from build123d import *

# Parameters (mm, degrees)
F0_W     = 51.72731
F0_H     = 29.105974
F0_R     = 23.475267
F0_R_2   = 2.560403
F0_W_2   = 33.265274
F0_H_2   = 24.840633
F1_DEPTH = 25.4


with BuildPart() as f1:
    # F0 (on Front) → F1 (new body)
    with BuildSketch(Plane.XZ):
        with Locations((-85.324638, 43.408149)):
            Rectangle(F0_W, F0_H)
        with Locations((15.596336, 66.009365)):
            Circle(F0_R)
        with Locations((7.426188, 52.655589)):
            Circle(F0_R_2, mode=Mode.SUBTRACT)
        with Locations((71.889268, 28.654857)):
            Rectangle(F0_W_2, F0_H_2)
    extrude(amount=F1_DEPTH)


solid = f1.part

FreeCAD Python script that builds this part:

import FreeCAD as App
import Part
import Sketcher

V = App.Vector
Q = App.Units.Quantity

doc = App.newDocument("Part")
body = doc.addObject("PartDesign::Body", "Body")
body.AllowCompound = True

# Sketch on XZ plane
sketch1 = body.newObject("Sketcher::SketchObject", "Sketch")
sketch1.AttachmentSupport = (doc.getObject("XZ_Plane"), [""])
sketch1.MapMode = "FlatFace"
sketch1.addGeometry([
    Part.LineSegment(V(-111.188293, 57.961136, 0), V(-111.188293, 28.855162, 0)),  # 0
    Part.LineSegment(V(-111.188293, 28.855162, 0), V(-59.460983, 28.855162, 0)),  # 1
    Part.LineSegment(V(-59.460983, 28.855162, 0), V(-59.460983, 57.961136, 0)),  # 2
    Part.LineSegment(V(-59.460983, 57.961136, 0), V(-111.188293, 57.961136, 0)),  # 3
    Part.Circle(V(15.596336, 66.009365, 0), V(0, 0, 1), 23.475267),  # 4
    Part.Circle(V(7.426188, 52.655589, 0), V(0, 0, 1), 2.560403),  # 5
    Part.LineSegment(V(55.256631, 41.075173, 0), V(55.256631, 16.234541, 0)),  # 6
    Part.LineSegment(V(55.256631, 16.234541, 0), V(88.521905, 16.234541, 0)),  # 7
    Part.LineSegment(V(88.521905, 16.234541, 0), V(88.521905, 41.075173, 0)),  # 8
    Part.LineSegment(V(88.521905, 41.075173, 0), V(55.256631, 41.075173, 0)),  # 9
], False)
sketch1.addConstraint([
    Sketcher.Constraint("Coincident", 0, 2, 1, 1),
    Sketcher.Constraint("Coincident", 1, 2, 2, 1),
    Sketcher.Constraint("Coincident", 2, 2, 3, 1),
    Sketcher.Constraint("Coincident", 3, 2, 0, 1),
    Sketcher.Constraint("Coincident", 6, 2, 7, 1),
    Sketcher.Constraint("Coincident", 7, 2, 8, 1),
    Sketcher.Constraint("Coincident", 8, 2, 9, 1),
    Sketcher.Constraint("Coincident", 9, 2, 6, 1),
    Sketcher.Constraint("Vertical", 0),
    Sketcher.Constraint("Horizontal", 1),
    Sketcher.Constraint("Vertical", 2),
    Sketcher.Constraint("Horizontal", 3),
    Sketcher.Constraint("Vertical", 6),
    Sketcher.Constraint("Horizontal", 7),
    Sketcher.Constraint("Vertical", 8),
    Sketcher.Constraint("Horizontal", 9),
    Sketcher.Constraint("Diameter", 4, 46.950534),
    Sketcher.Constraint("Diameter", 5, 5.120806),
    Sketcher.Constraint("DistanceX", 1, 1, 1, 2, 51.72731),
    Sketcher.Constraint("DistanceX", 7, 1, 7, 2, 33.265274),
    Sketcher.Constraint("DistanceY", 0, 2, 0, 1, 29.105974),
    Sketcher.Constraint("DistanceY", 6, 2, 6, 1, 24.840633),
    Sketcher.Constraint("DistanceY", -1, 1, 5, 3, 52.655589),
    Sketcher.Constraint("DistanceY", -1, 1, 0, 2, 28.855162),
    Sketcher.Constraint("DistanceX", -1, 1, 6, 2, 55.256631),
    Sketcher.Constraint("DistanceY", -1, 1, 6, 2, 16.234541),
    Sketcher.Constraint("DistanceX", 5, 3, 4, 3, 8.170148),
    Sketcher.Constraint("DistanceX", 0, 2, 5, 3, 118.614481),
    Sketcher.Constraint("DistanceY", 2, 2, 4, 3, 8.048229),
    Sketcher.Constraint("DistanceX", 4, 3, 7, 2, 72.925569),
])
pad1 = body.newObject("PartDesign::Pad", "Pad")
pad1.Profile = sketch1
pad1.Length = Q("1 in")

doc.recompute()
